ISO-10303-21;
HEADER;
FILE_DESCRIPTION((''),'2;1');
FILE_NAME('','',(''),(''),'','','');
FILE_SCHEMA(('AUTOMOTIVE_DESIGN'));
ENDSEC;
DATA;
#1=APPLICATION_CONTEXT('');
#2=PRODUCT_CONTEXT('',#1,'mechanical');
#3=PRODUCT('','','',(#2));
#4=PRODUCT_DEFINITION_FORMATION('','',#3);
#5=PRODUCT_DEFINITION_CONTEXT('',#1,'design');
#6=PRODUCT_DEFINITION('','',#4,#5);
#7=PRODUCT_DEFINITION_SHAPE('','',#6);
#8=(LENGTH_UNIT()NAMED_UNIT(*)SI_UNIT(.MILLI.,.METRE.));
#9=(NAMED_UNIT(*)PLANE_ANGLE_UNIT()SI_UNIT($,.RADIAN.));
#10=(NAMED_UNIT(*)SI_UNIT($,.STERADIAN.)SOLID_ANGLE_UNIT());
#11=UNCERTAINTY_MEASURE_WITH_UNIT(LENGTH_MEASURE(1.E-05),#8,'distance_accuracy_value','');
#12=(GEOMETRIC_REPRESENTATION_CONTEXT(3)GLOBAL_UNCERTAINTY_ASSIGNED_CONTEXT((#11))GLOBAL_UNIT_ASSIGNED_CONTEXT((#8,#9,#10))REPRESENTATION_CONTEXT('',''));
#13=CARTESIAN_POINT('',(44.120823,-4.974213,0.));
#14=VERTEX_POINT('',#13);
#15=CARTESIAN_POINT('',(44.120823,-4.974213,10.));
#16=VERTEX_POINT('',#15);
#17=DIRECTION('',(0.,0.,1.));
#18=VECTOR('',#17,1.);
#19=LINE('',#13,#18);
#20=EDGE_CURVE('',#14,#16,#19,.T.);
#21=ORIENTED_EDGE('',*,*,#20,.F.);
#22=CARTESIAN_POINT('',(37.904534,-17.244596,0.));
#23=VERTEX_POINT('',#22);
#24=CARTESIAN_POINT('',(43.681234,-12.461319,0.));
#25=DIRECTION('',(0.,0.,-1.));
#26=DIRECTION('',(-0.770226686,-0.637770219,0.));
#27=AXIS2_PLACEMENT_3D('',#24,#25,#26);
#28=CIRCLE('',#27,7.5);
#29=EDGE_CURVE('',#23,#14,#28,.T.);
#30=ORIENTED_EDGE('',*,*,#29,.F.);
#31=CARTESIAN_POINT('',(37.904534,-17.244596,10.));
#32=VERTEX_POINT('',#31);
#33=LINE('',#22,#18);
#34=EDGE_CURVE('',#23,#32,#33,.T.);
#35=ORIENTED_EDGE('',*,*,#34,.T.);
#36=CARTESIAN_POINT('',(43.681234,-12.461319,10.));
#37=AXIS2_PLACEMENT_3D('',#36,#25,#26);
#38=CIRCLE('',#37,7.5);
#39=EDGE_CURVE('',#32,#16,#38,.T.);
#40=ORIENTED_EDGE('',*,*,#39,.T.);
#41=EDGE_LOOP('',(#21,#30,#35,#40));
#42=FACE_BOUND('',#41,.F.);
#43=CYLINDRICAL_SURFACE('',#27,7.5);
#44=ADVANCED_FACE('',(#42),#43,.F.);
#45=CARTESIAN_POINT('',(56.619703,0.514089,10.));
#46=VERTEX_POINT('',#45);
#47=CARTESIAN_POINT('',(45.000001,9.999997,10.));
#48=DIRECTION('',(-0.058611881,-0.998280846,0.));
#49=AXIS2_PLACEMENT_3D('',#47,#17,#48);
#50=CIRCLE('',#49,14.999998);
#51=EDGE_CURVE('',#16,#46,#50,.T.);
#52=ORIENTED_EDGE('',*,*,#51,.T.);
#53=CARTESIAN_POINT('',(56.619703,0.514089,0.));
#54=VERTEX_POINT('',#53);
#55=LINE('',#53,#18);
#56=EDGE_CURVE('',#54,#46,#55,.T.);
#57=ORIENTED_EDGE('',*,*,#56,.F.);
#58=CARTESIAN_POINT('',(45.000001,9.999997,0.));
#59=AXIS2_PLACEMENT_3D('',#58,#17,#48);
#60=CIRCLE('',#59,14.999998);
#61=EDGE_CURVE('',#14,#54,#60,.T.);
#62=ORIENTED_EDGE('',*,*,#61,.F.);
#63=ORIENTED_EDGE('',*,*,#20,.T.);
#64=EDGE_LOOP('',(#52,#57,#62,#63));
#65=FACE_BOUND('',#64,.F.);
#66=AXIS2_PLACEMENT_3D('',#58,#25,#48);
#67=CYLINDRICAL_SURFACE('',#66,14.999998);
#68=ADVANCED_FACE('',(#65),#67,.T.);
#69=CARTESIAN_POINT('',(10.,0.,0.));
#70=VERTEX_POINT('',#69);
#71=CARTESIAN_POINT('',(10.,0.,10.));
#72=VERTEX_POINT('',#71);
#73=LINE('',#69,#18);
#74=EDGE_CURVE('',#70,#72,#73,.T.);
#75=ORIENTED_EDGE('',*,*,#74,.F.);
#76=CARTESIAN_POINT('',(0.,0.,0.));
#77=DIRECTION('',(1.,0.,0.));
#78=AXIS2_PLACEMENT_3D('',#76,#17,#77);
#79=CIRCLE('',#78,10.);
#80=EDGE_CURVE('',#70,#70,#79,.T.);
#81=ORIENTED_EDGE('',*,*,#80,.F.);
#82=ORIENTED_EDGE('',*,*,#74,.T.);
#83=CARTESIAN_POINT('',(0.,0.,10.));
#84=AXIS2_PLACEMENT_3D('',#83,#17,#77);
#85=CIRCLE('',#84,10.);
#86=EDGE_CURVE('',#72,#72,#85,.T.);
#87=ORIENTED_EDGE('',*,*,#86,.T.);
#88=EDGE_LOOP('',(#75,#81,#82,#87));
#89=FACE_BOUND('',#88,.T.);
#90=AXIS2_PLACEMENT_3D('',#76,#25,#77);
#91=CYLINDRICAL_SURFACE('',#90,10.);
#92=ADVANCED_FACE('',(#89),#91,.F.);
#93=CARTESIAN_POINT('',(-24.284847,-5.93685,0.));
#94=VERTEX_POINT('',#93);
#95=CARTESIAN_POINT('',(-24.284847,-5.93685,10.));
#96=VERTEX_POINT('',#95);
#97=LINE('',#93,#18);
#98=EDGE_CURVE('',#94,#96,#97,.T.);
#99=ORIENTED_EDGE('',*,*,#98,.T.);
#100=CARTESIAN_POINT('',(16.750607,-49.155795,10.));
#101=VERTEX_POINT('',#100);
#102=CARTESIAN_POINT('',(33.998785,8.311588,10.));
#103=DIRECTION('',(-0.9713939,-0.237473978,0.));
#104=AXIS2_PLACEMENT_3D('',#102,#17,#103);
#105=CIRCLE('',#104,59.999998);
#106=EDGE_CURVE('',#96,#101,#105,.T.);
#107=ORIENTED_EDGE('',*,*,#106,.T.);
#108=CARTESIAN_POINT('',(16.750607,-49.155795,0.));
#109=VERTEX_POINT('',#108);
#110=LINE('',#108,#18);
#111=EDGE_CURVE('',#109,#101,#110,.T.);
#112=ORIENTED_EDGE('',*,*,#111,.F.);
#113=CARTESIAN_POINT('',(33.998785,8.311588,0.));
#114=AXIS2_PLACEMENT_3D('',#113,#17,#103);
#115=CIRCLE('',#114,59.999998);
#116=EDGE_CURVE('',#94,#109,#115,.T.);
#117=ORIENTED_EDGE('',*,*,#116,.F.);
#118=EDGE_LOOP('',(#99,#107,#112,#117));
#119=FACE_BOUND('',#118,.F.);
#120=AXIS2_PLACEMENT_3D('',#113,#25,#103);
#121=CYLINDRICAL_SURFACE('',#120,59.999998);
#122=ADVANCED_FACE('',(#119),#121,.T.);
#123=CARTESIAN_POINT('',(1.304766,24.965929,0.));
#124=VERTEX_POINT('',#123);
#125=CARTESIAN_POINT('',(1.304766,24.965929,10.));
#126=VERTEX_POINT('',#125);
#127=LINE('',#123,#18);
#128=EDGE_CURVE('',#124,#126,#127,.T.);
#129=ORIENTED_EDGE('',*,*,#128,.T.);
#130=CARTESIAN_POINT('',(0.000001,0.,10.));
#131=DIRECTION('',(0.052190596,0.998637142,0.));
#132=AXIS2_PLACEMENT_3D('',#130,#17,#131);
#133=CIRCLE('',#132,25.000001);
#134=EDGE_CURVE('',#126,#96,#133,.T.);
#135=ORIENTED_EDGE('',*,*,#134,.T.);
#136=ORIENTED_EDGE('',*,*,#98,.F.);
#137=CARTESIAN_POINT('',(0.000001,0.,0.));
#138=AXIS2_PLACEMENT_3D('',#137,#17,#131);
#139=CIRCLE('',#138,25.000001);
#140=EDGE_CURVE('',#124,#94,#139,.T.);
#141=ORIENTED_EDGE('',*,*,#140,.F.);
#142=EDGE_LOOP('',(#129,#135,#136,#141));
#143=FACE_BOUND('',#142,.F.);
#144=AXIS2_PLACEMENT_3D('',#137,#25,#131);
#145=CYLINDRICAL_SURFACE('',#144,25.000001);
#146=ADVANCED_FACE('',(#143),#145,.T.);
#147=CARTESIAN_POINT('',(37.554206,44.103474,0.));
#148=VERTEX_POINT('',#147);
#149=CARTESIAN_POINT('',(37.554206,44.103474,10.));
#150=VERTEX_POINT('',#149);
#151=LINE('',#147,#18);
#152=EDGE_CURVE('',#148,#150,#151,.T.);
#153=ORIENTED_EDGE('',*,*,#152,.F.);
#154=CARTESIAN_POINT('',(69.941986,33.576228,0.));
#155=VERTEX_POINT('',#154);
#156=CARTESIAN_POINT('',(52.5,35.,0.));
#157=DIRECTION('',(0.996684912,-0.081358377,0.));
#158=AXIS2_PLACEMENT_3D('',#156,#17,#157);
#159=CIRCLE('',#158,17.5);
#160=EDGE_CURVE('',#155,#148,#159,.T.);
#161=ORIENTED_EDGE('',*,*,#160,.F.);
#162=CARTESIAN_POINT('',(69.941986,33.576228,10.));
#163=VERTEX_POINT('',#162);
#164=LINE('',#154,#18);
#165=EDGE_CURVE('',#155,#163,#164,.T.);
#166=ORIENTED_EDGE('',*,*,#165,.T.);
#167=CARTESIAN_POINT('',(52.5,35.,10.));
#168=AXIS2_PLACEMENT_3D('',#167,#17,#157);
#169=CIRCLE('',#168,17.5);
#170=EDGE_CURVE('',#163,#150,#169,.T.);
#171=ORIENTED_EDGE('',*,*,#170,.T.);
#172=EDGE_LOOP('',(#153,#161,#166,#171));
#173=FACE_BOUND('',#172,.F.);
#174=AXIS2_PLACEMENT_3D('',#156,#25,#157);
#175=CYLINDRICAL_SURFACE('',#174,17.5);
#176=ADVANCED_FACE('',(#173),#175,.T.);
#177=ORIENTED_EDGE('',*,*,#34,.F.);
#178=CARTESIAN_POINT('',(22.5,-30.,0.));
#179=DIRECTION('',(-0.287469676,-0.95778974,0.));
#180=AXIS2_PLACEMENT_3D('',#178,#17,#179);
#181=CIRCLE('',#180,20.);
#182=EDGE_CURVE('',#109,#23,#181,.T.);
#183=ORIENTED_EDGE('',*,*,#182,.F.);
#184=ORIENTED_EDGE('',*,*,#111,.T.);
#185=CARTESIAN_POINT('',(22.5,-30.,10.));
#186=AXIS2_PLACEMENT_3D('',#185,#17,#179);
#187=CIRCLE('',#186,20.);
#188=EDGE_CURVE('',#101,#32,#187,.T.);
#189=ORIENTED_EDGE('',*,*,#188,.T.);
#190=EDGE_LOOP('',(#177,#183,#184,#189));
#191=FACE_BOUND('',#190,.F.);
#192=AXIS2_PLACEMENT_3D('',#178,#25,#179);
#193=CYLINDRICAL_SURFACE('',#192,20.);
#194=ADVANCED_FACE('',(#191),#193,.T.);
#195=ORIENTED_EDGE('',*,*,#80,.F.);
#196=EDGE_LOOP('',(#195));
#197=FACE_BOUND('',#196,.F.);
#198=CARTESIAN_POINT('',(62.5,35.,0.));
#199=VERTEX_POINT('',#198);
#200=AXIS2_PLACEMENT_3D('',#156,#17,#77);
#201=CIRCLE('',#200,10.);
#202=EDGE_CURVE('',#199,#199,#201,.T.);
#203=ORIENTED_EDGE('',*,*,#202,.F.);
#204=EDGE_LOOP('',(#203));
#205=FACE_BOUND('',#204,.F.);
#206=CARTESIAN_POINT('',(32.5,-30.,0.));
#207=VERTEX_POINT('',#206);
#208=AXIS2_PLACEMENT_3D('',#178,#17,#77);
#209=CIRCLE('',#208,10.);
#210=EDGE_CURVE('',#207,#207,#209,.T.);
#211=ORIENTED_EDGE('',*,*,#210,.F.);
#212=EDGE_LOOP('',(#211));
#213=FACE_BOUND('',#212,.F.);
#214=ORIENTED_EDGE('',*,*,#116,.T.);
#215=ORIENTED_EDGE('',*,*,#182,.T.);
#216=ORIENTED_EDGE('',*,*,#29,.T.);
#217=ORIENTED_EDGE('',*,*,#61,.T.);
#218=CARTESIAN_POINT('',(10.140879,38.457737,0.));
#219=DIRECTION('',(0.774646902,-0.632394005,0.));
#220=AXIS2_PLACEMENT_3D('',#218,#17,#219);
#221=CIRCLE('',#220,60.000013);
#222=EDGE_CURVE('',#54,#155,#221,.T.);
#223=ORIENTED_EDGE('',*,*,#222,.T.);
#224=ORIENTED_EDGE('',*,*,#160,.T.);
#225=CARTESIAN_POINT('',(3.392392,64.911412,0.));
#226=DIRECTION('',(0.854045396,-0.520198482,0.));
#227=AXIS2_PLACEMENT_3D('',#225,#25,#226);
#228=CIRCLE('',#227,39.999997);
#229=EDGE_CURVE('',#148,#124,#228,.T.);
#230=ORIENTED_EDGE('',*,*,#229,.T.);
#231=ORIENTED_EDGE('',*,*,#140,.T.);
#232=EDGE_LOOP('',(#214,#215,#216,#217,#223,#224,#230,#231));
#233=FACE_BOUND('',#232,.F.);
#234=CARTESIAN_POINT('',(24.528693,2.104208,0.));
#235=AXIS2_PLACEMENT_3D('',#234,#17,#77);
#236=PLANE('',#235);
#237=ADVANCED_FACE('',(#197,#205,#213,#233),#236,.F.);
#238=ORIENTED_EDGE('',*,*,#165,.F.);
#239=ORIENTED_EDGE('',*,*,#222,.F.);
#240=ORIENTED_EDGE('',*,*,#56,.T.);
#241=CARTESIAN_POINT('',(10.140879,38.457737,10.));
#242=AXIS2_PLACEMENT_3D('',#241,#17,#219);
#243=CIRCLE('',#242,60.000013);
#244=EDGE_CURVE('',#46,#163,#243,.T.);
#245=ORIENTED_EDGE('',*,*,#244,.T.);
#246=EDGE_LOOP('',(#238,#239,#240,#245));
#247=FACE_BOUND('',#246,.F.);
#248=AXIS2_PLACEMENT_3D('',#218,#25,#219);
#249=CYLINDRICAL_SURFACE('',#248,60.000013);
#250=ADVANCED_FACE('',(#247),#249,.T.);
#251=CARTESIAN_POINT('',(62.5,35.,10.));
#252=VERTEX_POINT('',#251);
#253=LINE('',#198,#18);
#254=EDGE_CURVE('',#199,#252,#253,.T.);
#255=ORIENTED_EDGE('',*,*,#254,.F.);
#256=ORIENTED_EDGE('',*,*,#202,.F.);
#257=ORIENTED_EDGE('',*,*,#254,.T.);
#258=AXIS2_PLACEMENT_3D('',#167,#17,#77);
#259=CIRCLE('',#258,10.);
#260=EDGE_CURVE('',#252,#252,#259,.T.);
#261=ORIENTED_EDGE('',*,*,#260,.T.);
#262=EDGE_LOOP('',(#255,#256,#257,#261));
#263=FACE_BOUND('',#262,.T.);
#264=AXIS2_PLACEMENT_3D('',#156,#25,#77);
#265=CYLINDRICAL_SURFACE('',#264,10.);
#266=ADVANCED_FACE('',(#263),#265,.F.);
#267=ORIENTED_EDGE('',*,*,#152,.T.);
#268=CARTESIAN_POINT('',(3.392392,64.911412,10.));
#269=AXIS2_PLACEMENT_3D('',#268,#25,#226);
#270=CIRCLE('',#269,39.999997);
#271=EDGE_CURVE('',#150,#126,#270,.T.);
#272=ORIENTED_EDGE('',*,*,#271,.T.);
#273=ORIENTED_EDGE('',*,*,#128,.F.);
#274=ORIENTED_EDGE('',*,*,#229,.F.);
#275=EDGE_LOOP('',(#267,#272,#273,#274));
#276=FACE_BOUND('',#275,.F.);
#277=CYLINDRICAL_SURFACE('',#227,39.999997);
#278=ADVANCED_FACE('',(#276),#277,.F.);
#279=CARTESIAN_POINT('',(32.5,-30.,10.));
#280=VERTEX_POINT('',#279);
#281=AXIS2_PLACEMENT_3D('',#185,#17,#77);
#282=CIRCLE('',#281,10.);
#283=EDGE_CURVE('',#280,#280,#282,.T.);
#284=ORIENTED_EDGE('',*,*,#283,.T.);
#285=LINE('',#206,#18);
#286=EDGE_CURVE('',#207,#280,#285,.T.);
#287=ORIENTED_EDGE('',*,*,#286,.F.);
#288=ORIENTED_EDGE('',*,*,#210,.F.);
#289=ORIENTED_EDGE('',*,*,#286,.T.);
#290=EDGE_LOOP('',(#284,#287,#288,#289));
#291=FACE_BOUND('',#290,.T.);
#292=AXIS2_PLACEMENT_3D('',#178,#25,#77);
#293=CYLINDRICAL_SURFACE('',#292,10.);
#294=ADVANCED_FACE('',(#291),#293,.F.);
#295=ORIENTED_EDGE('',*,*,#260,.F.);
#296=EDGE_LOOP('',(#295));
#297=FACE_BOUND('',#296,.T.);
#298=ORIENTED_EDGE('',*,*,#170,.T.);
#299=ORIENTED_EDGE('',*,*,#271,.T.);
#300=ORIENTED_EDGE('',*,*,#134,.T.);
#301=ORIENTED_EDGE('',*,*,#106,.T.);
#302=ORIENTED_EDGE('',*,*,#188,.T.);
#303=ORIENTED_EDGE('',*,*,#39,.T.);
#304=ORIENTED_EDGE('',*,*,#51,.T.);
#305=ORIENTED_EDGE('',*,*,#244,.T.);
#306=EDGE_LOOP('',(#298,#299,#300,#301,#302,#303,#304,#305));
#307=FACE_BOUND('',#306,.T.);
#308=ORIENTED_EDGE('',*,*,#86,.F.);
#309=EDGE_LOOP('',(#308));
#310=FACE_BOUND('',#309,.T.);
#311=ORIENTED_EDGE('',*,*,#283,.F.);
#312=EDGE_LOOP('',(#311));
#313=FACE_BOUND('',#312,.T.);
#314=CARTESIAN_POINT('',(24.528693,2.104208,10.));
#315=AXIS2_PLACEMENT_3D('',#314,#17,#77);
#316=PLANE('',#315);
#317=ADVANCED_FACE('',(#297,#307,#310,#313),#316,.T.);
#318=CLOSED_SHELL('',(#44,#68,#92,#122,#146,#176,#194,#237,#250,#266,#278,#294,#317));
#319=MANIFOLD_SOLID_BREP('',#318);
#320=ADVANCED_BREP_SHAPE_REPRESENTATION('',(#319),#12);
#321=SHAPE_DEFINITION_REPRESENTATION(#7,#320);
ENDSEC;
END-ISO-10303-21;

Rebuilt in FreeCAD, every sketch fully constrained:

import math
import FreeCAD as App
import Part
import Sketcher
from FreeCAD import Vector

doc = App.newDocument("Part")
body = doc.addObject("PartDesign::Body", "Body")

# Sketch on XY plane
sketch1 = body.newObject("Sketcher::SketchObject", "Sketch")
sketch1.AttachmentSupport = (doc.getObject("XY_Plane"), [""])
sketch1.MapMode = "FlatFace"
sketch1.addGeometry([
    Part.ArcOfCircle(Part.Circle(Vector(0.000001, 0, 0), Vector(0, 0, 1), 25.000001), math.radians(87.00834), math.radians(193.737501)),  # 0
    Part.ArcOfCircle(Part.Circle(Vector(33.998785, 8.311588, 0), Vector(0, 0, 1), 59.999998), math.radians(-166.2625), math.radians(-106.706528)),  # 1
    Part.ArcOfCircle(Part.Circle(Vector(22.5, -30, 0), Vector(0, 0, 1), 20), math.radians(-106.70653), math.radians(39.625751)),  # 2
    Part.ArcOfCircle(Part.Circle(Vector(43.681234, -12.461319, 0), Vector(0, 0, 1), 7.5), math.radians(86.639863), math.radians(219.625751)),  # 3
    Part.ArcOfCircle(Part.Circle(Vector(45.000001, 9.999997, 0), Vector(0, 0, 1), 14.999998), math.radians(-93.360139), math.radians(-39.226968)),  # 4
    Part.ArcOfCircle(Part.Circle(Vector(10.140879, 38.457737, 0), Vector(0, 0, 1), 60.000013), math.radians(-39.22697), math.radians(-4.666655)),  # 5
    Part.ArcOfCircle(Part.Circle(Vector(52.5, 35, 0), Vector(0, 0, 1), 17.5), math.radians(-4.66665), math.radians(148.65443)),  # 6
    Part.ArcOfCircle(Part.Circle(Vector(3.392392, 64.911412, 0), Vector(0, 0, 1), 39.999997), math.radians(-92.991664), math.radians(-31.345566)),  # 7
    Part.Circle(Vector(22.5, -30, 0), Vector(0, 0, 1), 10),  # 8
    Part.Circle(Vector(0, 0, 0), Vector(0, 0, 1), 10),  # 9
    Part.Circle(Vector(52.5, 35, 0), Vector(0, 0, 1), 10),  # 10
], False)
sketch1.addConstraint([
    Sketcher.Constraint("Tangent", 0, 2, 1, 1),
    Sketcher.Constraint("Tangent", 1, 2, 2, 1),
    Sketcher.Constraint("Tangent", 2, 2, 3, 2),
    Sketcher.Constraint("Tangent", 3, 1, 4, 1),
    Sketcher.Constraint("Tangent", 4, 2, 5, 1),
    Sketcher.Constraint("Tangent", 5, 2, 6, 1),
    Sketcher.Constraint("Tangent", 6, 2, 7, 2),
    Sketcher.Constraint("Tangent", 7, 1, 0, 1),
    Sketcher.Constraint("Coincident", 0, 3, -1, 1),
    Sketcher.Constraint("Coincident", 9, 3, -1, 1),
    Sketcher.Constraint("Coincident", 8, 3, 2, 3),
    Sketcher.Constraint("Coincident", 10, 3, 6, 3),
    Sketcher.Constraint("Equal", 8, 9),
    Sketcher.Constraint("Equal", 9, 10),
    Sketcher.Constraint("Diameter", 8, 20.0),
    Sketcher.Constraint("Radius", 0, 25.000001),
    Sketcher.Constraint("Radius", 1, 59.999998),
    Sketcher.Constraint("Radius", 2, 20.0),
    Sketcher.Constraint("Radius", 3, 7.5),
    Sketcher.Constraint("Radius", 6, 17.5),
    Sketcher.Constraint("DistanceY", 2, 3, -1, 1, 30.0),
    Sketcher.Constraint("DistanceX", -1, 1, 4, 3, 45.000001),
    Sketcher.Constraint("DistanceY", -1, 1, 6, 3, 35.0),
    Sketcher.Constraint("DistanceX", -1, 1, 2, 3, 22.5),
    Sketcher.Constraint("DistanceX", -1, 1, 6, 3, 52.5),
    Sketcher.Constraint("Radius", 4, 14.999998),
    Sketcher.Constraint("Radius", 5, 60.000013),
    Sketcher.Constraint("Radius", 7, 39.999997),
    Sketcher.Constraint("DistanceX", 2, 2, 3, 3, 5.7767),
])
pad1 = body.newObject("PartDesign::Pad", "Pad")
pad1.Profile = sketch1
pad1.Length = 10

doc.recompute()
